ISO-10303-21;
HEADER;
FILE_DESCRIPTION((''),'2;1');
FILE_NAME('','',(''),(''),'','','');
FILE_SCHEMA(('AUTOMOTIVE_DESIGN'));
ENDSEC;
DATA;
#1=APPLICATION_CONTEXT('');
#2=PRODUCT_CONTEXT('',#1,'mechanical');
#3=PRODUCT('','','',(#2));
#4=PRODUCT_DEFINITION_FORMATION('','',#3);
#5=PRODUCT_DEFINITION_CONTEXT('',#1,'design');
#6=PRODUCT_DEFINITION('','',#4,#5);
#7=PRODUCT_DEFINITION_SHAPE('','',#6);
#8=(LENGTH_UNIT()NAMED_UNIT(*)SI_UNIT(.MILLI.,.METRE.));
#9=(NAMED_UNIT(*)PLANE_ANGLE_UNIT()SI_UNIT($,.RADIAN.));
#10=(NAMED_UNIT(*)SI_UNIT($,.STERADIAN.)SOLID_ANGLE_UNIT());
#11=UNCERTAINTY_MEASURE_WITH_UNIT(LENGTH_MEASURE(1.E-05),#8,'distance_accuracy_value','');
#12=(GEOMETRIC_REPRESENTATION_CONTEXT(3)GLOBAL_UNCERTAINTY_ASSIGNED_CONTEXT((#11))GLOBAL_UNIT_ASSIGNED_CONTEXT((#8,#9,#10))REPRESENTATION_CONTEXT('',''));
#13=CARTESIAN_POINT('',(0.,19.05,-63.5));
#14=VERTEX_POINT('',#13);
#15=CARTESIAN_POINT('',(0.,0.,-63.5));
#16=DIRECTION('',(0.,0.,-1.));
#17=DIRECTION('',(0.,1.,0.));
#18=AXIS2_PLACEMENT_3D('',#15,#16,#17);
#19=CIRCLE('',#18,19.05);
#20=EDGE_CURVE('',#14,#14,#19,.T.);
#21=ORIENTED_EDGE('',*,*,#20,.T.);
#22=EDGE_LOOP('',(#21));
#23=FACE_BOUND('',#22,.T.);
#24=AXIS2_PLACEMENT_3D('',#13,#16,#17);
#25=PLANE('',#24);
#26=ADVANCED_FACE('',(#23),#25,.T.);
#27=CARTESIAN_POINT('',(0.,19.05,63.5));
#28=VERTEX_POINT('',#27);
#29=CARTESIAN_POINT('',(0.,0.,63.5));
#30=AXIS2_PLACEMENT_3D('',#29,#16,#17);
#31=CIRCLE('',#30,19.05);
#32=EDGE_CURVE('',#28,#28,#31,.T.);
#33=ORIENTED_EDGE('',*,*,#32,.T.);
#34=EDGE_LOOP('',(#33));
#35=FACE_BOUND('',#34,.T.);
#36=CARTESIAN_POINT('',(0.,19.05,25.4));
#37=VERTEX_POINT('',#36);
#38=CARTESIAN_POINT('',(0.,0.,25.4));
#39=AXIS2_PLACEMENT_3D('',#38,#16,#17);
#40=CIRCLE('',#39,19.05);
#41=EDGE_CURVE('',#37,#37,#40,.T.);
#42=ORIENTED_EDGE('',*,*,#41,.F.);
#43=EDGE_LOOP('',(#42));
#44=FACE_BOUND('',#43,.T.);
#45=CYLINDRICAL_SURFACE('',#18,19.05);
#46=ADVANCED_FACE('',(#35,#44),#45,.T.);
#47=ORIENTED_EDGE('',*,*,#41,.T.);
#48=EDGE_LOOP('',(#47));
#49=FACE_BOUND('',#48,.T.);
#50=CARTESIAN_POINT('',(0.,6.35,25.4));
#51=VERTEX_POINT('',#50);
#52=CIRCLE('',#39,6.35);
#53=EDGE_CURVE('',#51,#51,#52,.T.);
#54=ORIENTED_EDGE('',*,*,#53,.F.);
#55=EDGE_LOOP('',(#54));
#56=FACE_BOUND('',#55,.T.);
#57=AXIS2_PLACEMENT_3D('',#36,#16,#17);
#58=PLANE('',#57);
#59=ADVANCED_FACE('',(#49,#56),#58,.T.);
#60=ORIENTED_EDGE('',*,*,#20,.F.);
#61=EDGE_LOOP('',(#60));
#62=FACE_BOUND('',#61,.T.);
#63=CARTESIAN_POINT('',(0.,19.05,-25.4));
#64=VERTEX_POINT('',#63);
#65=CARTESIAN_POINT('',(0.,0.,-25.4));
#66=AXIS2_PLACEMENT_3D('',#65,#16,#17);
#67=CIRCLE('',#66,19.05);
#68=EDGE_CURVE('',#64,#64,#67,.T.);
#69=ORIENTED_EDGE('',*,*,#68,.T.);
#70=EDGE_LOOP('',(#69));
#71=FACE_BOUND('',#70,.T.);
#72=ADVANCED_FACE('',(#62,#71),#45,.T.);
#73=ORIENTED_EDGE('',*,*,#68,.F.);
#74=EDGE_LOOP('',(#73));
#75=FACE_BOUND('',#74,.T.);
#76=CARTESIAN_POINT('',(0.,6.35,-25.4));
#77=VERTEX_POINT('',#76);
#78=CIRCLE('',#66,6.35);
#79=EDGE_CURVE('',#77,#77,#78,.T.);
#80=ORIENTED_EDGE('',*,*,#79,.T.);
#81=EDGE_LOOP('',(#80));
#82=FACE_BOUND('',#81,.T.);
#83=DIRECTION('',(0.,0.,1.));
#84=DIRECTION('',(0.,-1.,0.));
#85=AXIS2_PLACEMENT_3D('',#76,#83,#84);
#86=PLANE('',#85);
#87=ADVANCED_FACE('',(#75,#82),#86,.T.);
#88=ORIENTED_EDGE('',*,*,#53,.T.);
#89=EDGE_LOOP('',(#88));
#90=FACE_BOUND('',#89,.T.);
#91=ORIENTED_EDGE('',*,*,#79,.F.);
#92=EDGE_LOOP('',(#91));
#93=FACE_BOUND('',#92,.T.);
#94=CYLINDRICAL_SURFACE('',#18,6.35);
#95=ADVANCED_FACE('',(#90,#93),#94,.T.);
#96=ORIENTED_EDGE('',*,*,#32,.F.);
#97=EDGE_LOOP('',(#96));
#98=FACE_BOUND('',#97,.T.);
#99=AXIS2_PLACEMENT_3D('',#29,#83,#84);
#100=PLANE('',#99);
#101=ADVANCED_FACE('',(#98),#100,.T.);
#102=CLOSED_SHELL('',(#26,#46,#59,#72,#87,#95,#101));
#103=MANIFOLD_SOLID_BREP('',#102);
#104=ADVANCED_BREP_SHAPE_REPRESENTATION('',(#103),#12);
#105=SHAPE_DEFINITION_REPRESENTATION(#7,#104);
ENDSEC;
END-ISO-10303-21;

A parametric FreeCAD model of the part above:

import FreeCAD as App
import Part
import Sketcher
Q = App.Units.Quantity


def add_polygon(sketch, points):
    """Adds a closed chain of lines whose ends are joined by coincident constraints."""
    first, n = sketch.GeometryCount, len(points)
    for a, b in zip(points, points[1:] + points[:1]):
        sketch.addGeometry(Part.LineSegment(App.Vector(*a, 0), App.Vector(*b, 0)), False)
    for i in range(n):
        sketch.addConstraint(Sketcher.Constraint("Coincident", first + i, 2, first + (i + 1) % n, 1))

doc = App.newDocument("Part")
body = doc.addObject("PartDesign::Body", "Body")

# Sketch on YZ plane
sketch1 = doc.addObject("Sketcher::SketchObject", "Sketch")
body.addObject(sketch1)
sketch1.AttachmentSupport = (doc.YZ_Plane, [""])
sketch1.MapMode = "FlatFace"
add_polygon(sketch1, [(0, 64), (0, -64), (19, -64), (19, -25), (6, -25), (6, 25), (19, 25), (19, 64)])  # lines 0-7
sketch1.addConstraint(Sketcher.Constraint("Vertical", 0))
sketch1.addConstraint(Sketcher.Constraint("Horizontal", 1))
sketch1.addConstraint(Sketcher.Constraint("Vertical", 2))
sketch1.addConstraint(Sketcher.Constraint("Horizontal", 3))
sketch1.addConstraint(Sketcher.Constraint("Vertical", 4))
sketch1.addConstraint(Sketcher.Constraint("Horizontal", 5))
sketch1.addConstraint(Sketcher.Constraint("Vertical", 6))
sketch1.addConstraint(Sketcher.Constraint("Horizontal", 7))
sketch1.addConstraint(Sketcher.Constraint("Symmetric", 0, 2, 7, 2, -1, 1))
sketch1.addConstraint(Sketcher.Constraint("Symmetric", 2, 2, 5, 2, -1))
sketch1.addConstraint(Sketcher.Constraint("DistanceY", 0, 2, 0, 1, Q("5 in")))
sketch1.addConstraint(Sketcher.Constraint("DistanceY", 4, 1, 4, 2, Q("2 in")))
sketch1.addConstraint(Sketcher.Constraint("DistanceX", 3, 2, 3, 1, Q("0.5 in")))
sketch1.addConstraint(Sketcher.Constraint("DistanceX", 1, 1, 1, 2, Q("0.75 in")))
revolution = doc.addObject("PartDesign::Revolution", "Revolution")
body.addObject(revolution)
revolution.Profile = sketch1
revolution.ReferenceAxis = (sketch1, ["V_Axis"])
revolution.Angle = 360

doc.recompute()
